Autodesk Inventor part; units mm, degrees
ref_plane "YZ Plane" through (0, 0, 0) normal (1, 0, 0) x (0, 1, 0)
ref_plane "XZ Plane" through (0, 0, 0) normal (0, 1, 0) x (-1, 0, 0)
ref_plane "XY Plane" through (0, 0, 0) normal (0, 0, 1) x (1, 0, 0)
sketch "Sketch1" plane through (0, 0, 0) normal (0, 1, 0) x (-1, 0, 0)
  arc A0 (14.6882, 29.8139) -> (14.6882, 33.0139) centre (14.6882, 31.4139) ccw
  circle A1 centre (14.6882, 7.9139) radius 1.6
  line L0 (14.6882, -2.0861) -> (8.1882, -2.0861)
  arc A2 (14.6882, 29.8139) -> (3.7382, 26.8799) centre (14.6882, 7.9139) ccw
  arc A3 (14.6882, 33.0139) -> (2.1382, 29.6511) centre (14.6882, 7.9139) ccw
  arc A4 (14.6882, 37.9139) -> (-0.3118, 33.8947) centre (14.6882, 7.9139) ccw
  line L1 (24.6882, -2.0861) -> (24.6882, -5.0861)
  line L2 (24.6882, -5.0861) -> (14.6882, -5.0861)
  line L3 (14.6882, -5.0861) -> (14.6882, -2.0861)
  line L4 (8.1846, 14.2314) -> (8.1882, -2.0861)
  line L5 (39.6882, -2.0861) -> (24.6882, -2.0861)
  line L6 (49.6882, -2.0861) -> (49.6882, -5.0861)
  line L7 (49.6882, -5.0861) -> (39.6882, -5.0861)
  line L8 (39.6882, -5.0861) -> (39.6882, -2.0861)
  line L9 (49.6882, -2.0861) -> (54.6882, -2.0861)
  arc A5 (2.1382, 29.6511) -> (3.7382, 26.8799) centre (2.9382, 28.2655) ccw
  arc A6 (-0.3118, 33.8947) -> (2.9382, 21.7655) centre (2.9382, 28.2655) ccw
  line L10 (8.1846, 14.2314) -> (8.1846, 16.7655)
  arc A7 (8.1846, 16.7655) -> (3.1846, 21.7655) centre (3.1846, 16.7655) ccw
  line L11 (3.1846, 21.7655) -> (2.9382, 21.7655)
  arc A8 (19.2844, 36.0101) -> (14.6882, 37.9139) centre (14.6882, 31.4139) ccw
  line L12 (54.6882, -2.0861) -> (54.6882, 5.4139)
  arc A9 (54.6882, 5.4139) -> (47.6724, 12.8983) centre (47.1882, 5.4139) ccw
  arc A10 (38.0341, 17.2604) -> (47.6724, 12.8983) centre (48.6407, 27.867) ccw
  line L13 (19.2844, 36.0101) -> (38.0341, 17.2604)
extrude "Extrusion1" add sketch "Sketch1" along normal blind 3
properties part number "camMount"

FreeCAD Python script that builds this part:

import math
import FreeCAD as App
import Part
import Sketcher
from FreeCAD import Vector
Q = App.Units.Quantity

doc = App.newDocument("Part")
body = doc.addObject("PartDesign::Body", "Body")

sketch1 = body.newObject("Sketcher::SketchObject", "Sketch")
sketch1.AttachmentSupport = (doc.getObject("XZ_Plane"), [""])
sketch1.MapMode = "FlatFace"
sketch1.addGeometry(Part.LineSegment(Vector(-8.19, -2.09, 0), Vector(-14.69, -2.09, 0)), False)
sketch1.addGeometry(Part.LineSegment(Vector(-14.69, -2.09, 0), Vector(-14.69, -5.09, 0)), False)
sketch1.addGeometry(Part.LineSegment(Vector(-14.69, -5.09, 0), Vector(-24.69, -5.09, 0)), False)
sketch1.addGeometry(Part.LineSegment(Vector(-24.69, -5.09, 0), Vector(-24.69, -2.09, 0)), False)
sketch1.addGeometry(Part.LineSegment(Vector(-24.69, -2.09, 0), Vector(-39.69, -2.09, 0)), False)
sketch1.addGeometry(Part.LineSegment(Vector(-39.69, -2.09, 0), Vector(-39.69, -5.09, 0)), False)
sketch1.addGeometry(Part.LineSegment(Vector(-39.69, -5.09, 0), Vector(-49.69, -5.09, 0)), False)
sketch1.addGeometry(Part.LineSegment(Vector(-49.69, -5.09, 0), Vector(-49.69, -2.09, 0)), False)
sketch1.addGeometry(Part.LineSegment(Vector(-49.69, -2.09, 0), Vector(-54.69, -2.09, 0)), False)
sketch1.addGeometry(Part.LineSegment(Vector(-54.69, -2.09, 0), Vector(-54.69, 5.41, 0)), False)
sketch1.addGeometry(Part.ArcOfCircle(Part.Circle(Vector(-47.19, 5.41, 0), Vector(0, 0, 1), 7.5), math.radians(94), math.radians(180)), False)
sketch1.addGeometry(Part.ArcOfCircle(Part.Circle(Vector(-48.64, 27.87, 0), Vector(0, 0, 1), 15), math.radians(-86), math.radians(-45)), False)
sketch1.addGeometry(Part.LineSegment(Vector(-38.03, 17.26, 0), Vector(-19.28, 36.01, 0)), False)
sketch1.addGeometry(Part.ArcOfCircle(Part.Circle(Vector(-14.69, 31.41, 0), Vector(0, 0, 1), 6.5), math.radians(90), math.radians(135)), False)
sketch1.addGeometry(Part.ArcOfCircle(Part.Circle(Vector(-14.69, 7.91, 0), Vector(0, 0, 1), 30), math.radians(60), math.radians(90)), False)
sketch1.addGeometry(Part.ArcOfCircle(Part.Circle(Vector(-2.94, 28.27, 0), Vector(0, 0, 1), 6.5), math.radians(-90), math.radians(60)), False)
sketch1.addGeometry(Part.LineSegment(Vector(-2.94, 21.77, 0), Vector(-3.18, 21.77, 0)), False)
sketch1.addGeometry(Part.ArcOfCircle(Part.Circle(Vector(-3.18, 16.77, 0), Vector(0, 0, 1), 5), math.radians(90), math.radians(180)), False)
sketch1.addGeometry(Part.LineSegment(Vector(-8.18, 16.77, 0), Vector(-8.18, 14.23, 0)), False)
sketch1.addGeometry(Part.LineSegment(Vector(-8.18, 14.23, 0), Vector(-8.19, -2.09, 0)), False)
sketch1.addGeometry(Part.Circle(Vector(-14.69, 7.91, 0), Vector(0, 0, 1), 1.6), False)
sketch1.addGeometry(Part.ArcOfCircle(Part.Circle(Vector(-14.69, 31.41, 0), Vector(0, 0, 1), 1.6), math.radians(90), math.radians(270)), False)
sketch1.addGeometry(Part.ArcOfCircle(Part.Circle(Vector(-14.69, 7.91, 0), Vector(0, 0, 1), 21.9), math.radians(60), math.radians(90)), False)
sketch1.addGeometry(Part.ArcOfCircle(Part.Circle(Vector(-2.94, 28.27, 0), Vector(0, 0, 1), 1.6), math.radians(-120), math.radians(60)), False)
sketch1.addGeometry(Part.ArcOfCircle(Part.Circle(Vector(-14.69, 7.91, 0), Vector(0, 0, 1), 25.1), math.radians(60), math.radians(90)), False)
sketch1.addConstraint(Sketcher.Constraint("Coincident", 0, 2, 1, 1))
sketch1.addConstraint(Sketcher.Constraint("Coincident", 1, 2, 2, 1))
sketch1.addConstraint(Sketcher.Constraint("Coincident", 2, 2, 3, 1))
sketch1.addConstraint(Sketcher.Constraint("Coincident", 3, 2, 4, 1))
sketch1.addConstraint(Sketcher.Constraint("Coincident", 4, 2, 5, 1))
sketch1.addConstraint(Sketcher.Constraint("Coincident", 5, 2, 6, 1))
sketch1.addConstraint(Sketcher.Constraint("Coincident", 6, 2, 7, 1))
sketch1.addConstraint(Sketcher.Constraint("Coincident", 7, 2, 8, 1))
sketch1.addConstraint(Sketcher.Constraint("Coincident", 8, 2, 9, 1))
sketch1.addConstraint(Sketcher.Constraint("Tangent", 9, 2, 10, 2))
sketch1.addConstraint(Sketcher.Constraint("Tangent", 10, 1, 11, 1))
sketch1.addConstraint(Sketcher.Constraint("Tangent", 11, 2, 12, 1))
sketch1.addConstraint(Sketcher.Constraint("Tangent", 12, 2, 13, 2))
sketch1.addConstraint(Sketcher.Constraint("Tangent", 13, 1, 14, 2))
sketch1.addConstraint(Sketcher.Constraint("Tangent", 14, 1, 15, 2))
sketch1.addConstraint(Sketcher.Constraint("Tangent", 15, 1, 16, 1))
sketch1.addConstraint(Sketcher.Constraint("Tangent", 16, 2, 17, 1))
sketch1.addConstraint(Sketcher.Constraint("Tangent", 17, 2, 18, 1))
sketch1.addConstraint(Sketcher.Constraint("Coincident", 18, 2, 19, 1))
sketch1.addConstraint(Sketcher.Constraint("Coincident", 19, 2, 0, 1))
sketch1.addConstraint(Sketcher.Constraint("Tangent", 21, 2, 22, 2))
sketch1.addConstraint(Sketcher.Constraint("Tangent", 22, 1, 23, 1))
sketch1.addConstraint(Sketcher.Constraint("Tangent", 23, 2, 24, 1))
sketch1.addConstraint(Sketcher.Constraint("Tangent", 24, 2, 21, 1))
sketch1.addConstraint(Sketcher.Constraint("Horizontal", 0))
sketch1.addConstraint(Sketcher.Constraint("Vertical", 1))
sketch1.addConstraint(Sketcher.Constraint("Horizontal", 2))
sketch1.addConstraint(Sketcher.Constraint("Vertical", 3))
sketch1.addConstraint(Sketcher.Constraint("Horizontal", 4))
sketch1.addConstraint(Sketcher.Constraint("Vertical", 5))
sketch1.addConstraint(Sketcher.Constraint("Horizontal", 6))
sketch1.addConstraint(Sketcher.Constraint("Vertical", 7))
sketch1.addConstraint(Sketcher.Constraint("Horizontal", 8))
sketch1.addConstraint(Sketcher.Constraint("Vertical", 9))
sketch1.addConstraint(Sketcher.Constraint("Horizontal", 16))
sketch1.addConstraint(Sketcher.Constraint("Vertical", 18))
sketch1.addConstraint(Sketcher.Constraint("Coincident", 20, 3, 14, 3))
sketch1.addConstraint(Sketcher.Constraint("Coincident", 21, 3, 13, 3))
sketch1.addConstraint(Sketcher.Constraint("Coincident", 22, 3, 14, 3))
sketch1.addConstraint(Sketcher.Constraint("Coincident", 23, 3, 15, 3))
sketch1.addConstraint(Sketcher.Constraint("Coincident", 24, 3, 14, 3))
sketch1.addConstraint(Sketcher.Constraint("Equal", 20, 21))
sketch1.addConstraint(Sketcher.Constraint("Horizontal", 0, 2, 3, 2))
sketch1.addConstraint(Sketcher.Constraint("Horizontal", 2, 2, 5, 2))
sketch1.addConstraint(Sketcher.Constraint("Horizontal", 4, 2, 7, 2))
sketch1.addConstraint(Sketcher.Constraint("Vertical", 13, 3, 14, 3))
sketch1.addConstraint(Sketcher.Constraint("Vertical", 24, 3, 0, 2))
sketch1.addConstraint(Sketcher.Constraint("Equal", 2, 6))
sketch1.addConstraint(Sketcher.Constraint("Radius", 11, 15.0))
sketch1.addConstraint(Sketcher.Constraint("Radius", 14, 30.0))
sketch1.addConstraint(Sketcher.Constraint("Radius", 17, 5.0))
sketch1.addConstraint(Sketcher.Constraint("Diameter", 20, 3.2))
sketch1.addConstraint(Sketcher.Constraint("Radius", 10, 7.5))
sketch1.addConstraint(Sketcher.Constraint("Radius", 13, 6.5))
sketch1.addConstraint(Sketcher.Constraint("DistanceX", 2, 2, 2, 1, 10.0))
sketch1.addConstraint(Sketcher.Constraint("DistanceX", 4, 2, 4, 1, 15.0))
sketch1.addConstraint(Sketcher.Constraint("DistanceX", 8, 2, 8, 1, 5.0))
sketch1.addConstraint(Sketcher.Constraint("DistanceY", 1, 2, 1, 1, 3.0))
sketch1.addConstraint(Sketcher.Constraint("Angle", 12, Q("45 deg")))
sketch1.addConstraint(Sketcher.Constraint("DistanceX", 0, 2, 0, 1, 6.5))
sketch1.addConstraint(Sketcher.Constraint("DistanceY", 9, 1, 9, 2, 7.5))
sketch1.addConstraint(Sketcher.Constraint("DistanceY", 10, 3, 13, 3, 26.0))
sketch1.addConstraint(Sketcher.Constraint("DistanceX", 13, 3, 14, 1, 15.0))
sketch1.addConstraint(Sketcher.Constraint("DistanceY", 18, 2, 18, 1, 2.534))
sketch1.addConstraint(Sketcher.Constraint("DistanceY", -1, 1, 12, 2, 36.01))
sketch1.addConstraint(Sketcher.Constraint("DistanceX", 16, 2, 16, 1, 0.2464))
sketch1.addConstraint(Sketcher.Constraint("DistanceX", 11, 2, -1, 1, 38.034))
pad1 = body.newObject("PartDesign::Pad", "Pad")
pad1.Profile = sketch1
pad1.Length = 3
pad1.Reversed = True

doc.recompute()
